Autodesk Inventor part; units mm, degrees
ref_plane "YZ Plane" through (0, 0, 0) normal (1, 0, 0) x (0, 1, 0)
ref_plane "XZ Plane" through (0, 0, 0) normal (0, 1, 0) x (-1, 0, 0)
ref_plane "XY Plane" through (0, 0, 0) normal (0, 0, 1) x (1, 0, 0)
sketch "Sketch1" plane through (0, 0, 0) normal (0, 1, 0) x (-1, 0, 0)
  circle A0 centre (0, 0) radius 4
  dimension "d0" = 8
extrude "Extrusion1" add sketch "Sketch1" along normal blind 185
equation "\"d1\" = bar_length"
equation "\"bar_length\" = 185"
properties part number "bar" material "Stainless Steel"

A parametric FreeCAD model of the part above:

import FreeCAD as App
import Part
import Sketcher

V = App.Vector

doc = App.newDocument("Part")
body = doc.addObject("PartDesign::Body", "Body")

# Sketch on XZ plane
sketch1 = doc.addObject("Sketcher::SketchObject", "Sketch")
body.addObject(sketch1)
sketch1.AttachmentSupport = (doc.XZ_Plane, [""])
sketch1.MapMode = "FlatFace"
sketch1.addGeometry(Part.Circle(V(0, 0, 0), V(0, 0, 1), 4), False)
sketch1.addConstraint(Sketcher.Constraint("Coincident", 0, 3, -1, 1))
sketch1.addConstraint(Sketcher.Constraint("Diameter", 0, 8.0))
pad1 = doc.addObject("PartDesign::Pad", "Pad")
body.addObject(pad1)
pad1.Profile = sketch1
pad1.Length = 185
pad1.Reversed = True

doc.recompute()
